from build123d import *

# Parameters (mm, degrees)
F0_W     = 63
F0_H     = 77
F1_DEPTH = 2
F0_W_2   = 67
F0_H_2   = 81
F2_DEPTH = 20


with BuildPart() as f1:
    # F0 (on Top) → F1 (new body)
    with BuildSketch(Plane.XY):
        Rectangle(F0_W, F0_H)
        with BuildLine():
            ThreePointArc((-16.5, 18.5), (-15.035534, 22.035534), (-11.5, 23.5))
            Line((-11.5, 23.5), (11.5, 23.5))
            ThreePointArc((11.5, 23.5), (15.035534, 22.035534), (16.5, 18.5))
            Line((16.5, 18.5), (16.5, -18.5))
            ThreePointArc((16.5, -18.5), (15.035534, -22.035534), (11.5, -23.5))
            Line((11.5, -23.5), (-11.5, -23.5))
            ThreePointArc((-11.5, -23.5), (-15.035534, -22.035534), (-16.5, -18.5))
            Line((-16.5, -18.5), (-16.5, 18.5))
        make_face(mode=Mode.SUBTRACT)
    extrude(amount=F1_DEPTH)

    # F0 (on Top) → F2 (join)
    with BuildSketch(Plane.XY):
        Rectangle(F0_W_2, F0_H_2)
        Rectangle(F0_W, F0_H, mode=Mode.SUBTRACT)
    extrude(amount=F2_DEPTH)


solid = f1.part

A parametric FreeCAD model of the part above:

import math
import FreeCAD as App
import Part
import Sketcher

V = App.Vector
Q = App.Units.Quantity

doc = App.newDocument("Part")
body = doc.addObject("PartDesign::Body", "Body")

# Sketch on XY plane
sketch1 = body.newObject("Sketcher::SketchObject", "Sketch")
sketch1.AttachmentSupport = (doc.getObject("XY_Plane"), [""])
sketch1.MapMode = "FlatFace"
sketch1.addGeometry([
    Part.LineSegment(V(-31.5, 38.5, 0), V(-31.5, -38.5, 0)),  # 0
    Part.LineSegment(V(-31.5, -38.5, 0), V(31.5, -38.5, 0)),  # 1
    Part.LineSegment(V(31.5, -38.5, 0), V(31.5, 38.5, 0)),  # 2
    Part.LineSegment(V(31.5, 38.5, 0), V(-31.5, 38.5, 0)),  # 3
    Part.LineSegment(V(-16.5, -18.5, 0), V(-16.5, 18.5, 0)),  # 4
    Part.ArcOfCircle(Part.Circle(V(-11.5, 18.5, 0), V(0, 0, 1), 5), math.radians(89.999996), math.radians(180.000004)),  # 5
    Part.LineSegment(V(-11.5, 23.5, 0), V(11.5, 23.5, 0)),  # 6
    Part.ArcOfCircle(Part.Circle(V(11.5, 18.5, 0), V(0, 0, 1), 5), math.radians(-0.000004), math.radians(90.000004)),  # 7
    Part.LineSegment(V(16.5, 18.5, 0), V(16.5, -18.5, 0)),  # 8
    Part.ArcOfCircle(Part.Circle(V(11.5, -18.5, 0), V(0, 0, 1), 5), math.radians(-90.000004), math.radians(0.000004)),  # 9
    Part.LineSegment(V(11.5, -23.5, 0), V(-11.5, -23.5, 0)),  # 10
    Part.ArcOfCircle(Part.Circle(V(-11.5, -18.5, 0), V(0, 0, 1), 5), math.radians(179.999996), math.radians(270.000004)),  # 11
], False)
sketch1.addConstraint([
    Sketcher.Constraint("Coincident", 0, 2, 1, 1),
    Sketcher.Constraint("Coincident", 1, 2, 2, 1),
    Sketcher.Constraint("Coincident", 2, 2, 3, 1),
    Sketcher.Constraint("Coincident", 3, 2, 0, 1),
    Sketcher.Constraint("Tangent", 4, 2, 5, 2),
    Sketcher.Constraint("Tangent", 5, 1, 6, 1),
    Sketcher.Constraint("Tangent", 6, 2, 7, 2),
    Sketcher.Constraint("Tangent", 7, 1, 8, 1),
    Sketcher.Constraint("Tangent", 8, 2, 9, 2),
    Sketcher.Constraint("Tangent", 9, 1, 10, 1),
    Sketcher.Constraint("Tangent", 10, 2, 11, 2),
    Sketcher.Constraint("Tangent", 11, 1, 4, 1),
    Sketcher.Constraint("Vertical", 0),
    Sketcher.Constraint("Horizontal", 1),
    Sketcher.Constraint("Vertical", 2),
    Sketcher.Constraint("Horizontal", 3),
    Sketcher.Constraint("Vertical", 4),
    Sketcher.Constraint("Horizontal", 6),
    Sketcher.Constraint("Vertical", 8),
    Sketcher.Constraint("Horizontal", 10),
    Sketcher.Constraint("Equal", 5, 7),
    Sketcher.Constraint("Equal", 7, 9),
    Sketcher.Constraint("Equal", 9, 11),
    Sketcher.Constraint("Symmetric", 5, 3, 9, 3, -1, 1),
    Sketcher.Constraint("Symmetric", 0, 2, 2, 2, -1, 1),
    Sketcher.Constraint("Radius", 5, Q("5 mm")),
    Sketcher.Constraint("DistanceX", 1, 1, 1, 2, Q("63 mm")),
    Sketcher.Constraint("DistanceX", 6, 1, 6, 2, Q("23 mm")),
    Sketcher.Constraint("DistanceY", 0, 2, 0, 1, Q("77 mm")),
    Sketcher.Constraint("DistanceY", 4, 1, 4, 2, Q("37 mm")),
])
pad1 = body.newObject("PartDesign::Pad", "Pad")
pad1.Profile = sketch1
pad1.Length = 2

# Sketch on XY plane
sketch2 = body.newObject("Sketcher::SketchObject", "Sketch001")
sketch2.AttachmentSupport = (doc.getObject("XY_Plane"), [""])
sketch2.MapMode = "FlatFace"
sketch2.addGeometry([
    Part.LineSegment(V(-33.5, 40.5, 0), V(-33.5, -40.5, 0)),  # 0
    Part.LineSegment(V(-33.5, -40.5, 0), V(33.5, -40.5, 0)),  # 1
    Part.LineSegment(V(33.5, -40.5, 0), V(33.5, 40.5, 0)),  # 2
    Part.LineSegment(V(33.5, 40.5, 0), V(-33.5, 40.5, 0)),  # 3
    Part.LineSegment(V(31.5, -38.5, 0), V(-31.5, -38.5, 0)),  # 4
    Part.LineSegment(V(-31.5, -38.5, 0), V(-31.5, 38.5, 0)),  # 5
    Part.LineSegment(V(-31.5, 38.5, 0), V(31.5, 38.5, 0)),  # 6
    Part.LineSegment(V(31.5, 38.5, 0), V(31.5, -38.5, 0)),  # 7
], False)
sketch2.addConstraint([
    Sketcher.Constraint("Coincident", 0, 2, 1, 1),
    Sketcher.Constraint("Coincident", 1, 2, 2, 1),
    Sketcher.Constraint("Coincident", 2, 2, 3, 1),
    Sketcher.Constraint("Coincident", 3, 2, 0, 1),
    Sketcher.Constraint("Coincident", 4, 2, 5, 1),
    Sketcher.Constraint("Coincident", 5, 2, 6, 1),
    Sketcher.Constraint("Coincident", 6, 2, 7, 1),
    Sketcher.Constraint("Coincident", 7, 2, 4, 1),
    Sketcher.Constraint("Vertical", 0),
    Sketcher.Constraint("Horizontal", 1),
    Sketcher.Constraint("Vertical", 2),
    Sketcher.Constraint("Horizontal", 3),
    Sketcher.Constraint("Horizontal", 4),
    Sketcher.Constraint("Vertical", 5),
    Sketcher.Constraint("Horizontal", 6),
    Sketcher.Constraint("Vertical", 7),
    Sketcher.Constraint("Symmetric", 0, 2, 2, 2, -1, 1),
    Sketcher.Constraint("Symmetric", 4, 2, 6, 2, -1, 1),
    Sketcher.Constraint("DistanceX", 1, 1, 1, 2, Q("67 mm")),
    Sketcher.Constraint("DistanceX", 4, 2, 4, 1, Q("63 mm")),
    Sketcher.Constraint("DistanceY", 0, 2, 0, 1, Q("81 mm")),
    Sketcher.Constraint("DistanceY", 5, 1, 5, 2, Q("77 mm")),
])
pad2 = body.newObject("PartDesign::Pad", "Pad001")
pad2.Profile = sketch2
pad2.Length = 20

doc.recompute()
